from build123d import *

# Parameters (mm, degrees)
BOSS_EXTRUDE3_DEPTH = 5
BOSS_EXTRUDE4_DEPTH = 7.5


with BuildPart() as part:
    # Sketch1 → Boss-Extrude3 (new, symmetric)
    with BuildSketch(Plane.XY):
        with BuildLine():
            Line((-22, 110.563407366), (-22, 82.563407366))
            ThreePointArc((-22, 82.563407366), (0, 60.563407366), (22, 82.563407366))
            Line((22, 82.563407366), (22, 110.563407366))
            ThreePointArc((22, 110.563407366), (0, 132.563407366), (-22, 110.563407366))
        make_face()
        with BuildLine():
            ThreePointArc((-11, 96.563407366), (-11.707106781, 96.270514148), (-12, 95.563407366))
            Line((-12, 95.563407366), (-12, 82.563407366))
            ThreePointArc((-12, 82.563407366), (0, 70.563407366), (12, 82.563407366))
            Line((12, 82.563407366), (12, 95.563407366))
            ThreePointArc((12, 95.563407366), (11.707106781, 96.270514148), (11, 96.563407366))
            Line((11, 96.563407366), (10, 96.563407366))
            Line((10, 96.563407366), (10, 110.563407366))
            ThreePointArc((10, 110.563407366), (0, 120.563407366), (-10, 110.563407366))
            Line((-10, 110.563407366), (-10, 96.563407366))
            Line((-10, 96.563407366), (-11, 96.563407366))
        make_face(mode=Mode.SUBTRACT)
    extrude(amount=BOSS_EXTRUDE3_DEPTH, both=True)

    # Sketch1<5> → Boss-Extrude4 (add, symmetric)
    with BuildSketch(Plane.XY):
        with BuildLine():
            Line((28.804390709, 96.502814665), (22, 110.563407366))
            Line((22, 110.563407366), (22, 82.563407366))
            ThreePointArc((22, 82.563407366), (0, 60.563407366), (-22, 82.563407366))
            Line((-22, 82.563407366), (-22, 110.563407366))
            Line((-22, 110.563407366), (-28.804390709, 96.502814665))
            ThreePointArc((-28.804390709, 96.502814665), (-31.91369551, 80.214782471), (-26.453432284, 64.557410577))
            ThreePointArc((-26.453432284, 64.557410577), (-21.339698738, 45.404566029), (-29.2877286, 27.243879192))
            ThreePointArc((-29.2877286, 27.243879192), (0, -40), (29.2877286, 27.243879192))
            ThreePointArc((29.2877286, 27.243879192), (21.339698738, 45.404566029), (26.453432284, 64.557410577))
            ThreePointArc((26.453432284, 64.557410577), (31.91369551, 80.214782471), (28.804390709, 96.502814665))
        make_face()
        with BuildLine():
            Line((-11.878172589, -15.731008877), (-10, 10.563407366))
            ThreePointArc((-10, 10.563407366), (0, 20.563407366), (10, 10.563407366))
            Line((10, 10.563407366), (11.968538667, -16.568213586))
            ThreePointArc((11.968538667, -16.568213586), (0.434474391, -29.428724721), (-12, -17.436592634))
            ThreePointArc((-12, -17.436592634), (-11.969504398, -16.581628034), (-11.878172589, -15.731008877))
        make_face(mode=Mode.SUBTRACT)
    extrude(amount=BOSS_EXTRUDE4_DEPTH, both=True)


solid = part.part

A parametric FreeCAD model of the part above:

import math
import FreeCAD as App
import Part
import Sketcher
from FreeCAD import Vector
Q = App.Units.Quantity

doc = App.newDocument("Part")
body = doc.addObject("PartDesign::Body", "Body")

# Sketch on XY plane
sketch1 = body.newObject("Sketcher::SketchObject", "Sketch")
sketch1.AttachmentSupport = (doc.getObject("XY_Plane"), [""])
sketch1.MapMode = "FlatFace"
sketch1.addGeometry([
    Part.LineSegment(Vector(-22, 110.563407, 0), Vector(-22, 82.563407, 0)),  # 0
    Part.ArcOfCircle(Part.Circle(Vector(0, 82.563407, 0), Vector(0, 0, 1), 22), math.radians(180), math.radians(360)),  # 1
    Part.LineSegment(Vector(22, 82.563407, 0), Vector(22, 110.563407, 0)),  # 2
    Part.ArcOfCircle(Part.Circle(Vector(0, 110.563407, 0), Vector(0, 0, 1), 22), math.radians(0), math.radians(180)),  # 3
    Part.ArcOfCircle(Part.Circle(Vector(-11, 95.563407, 0), Vector(0, 0, 1), 1), math.radians(90), math.radians(180)),  # 4
    Part.LineSegment(Vector(-11, 96.563407, 0), Vector(-10, 96.563407, 0)),  # 5
    Part.LineSegment(Vector(-10, 96.563407, 0), Vector(-10, 110.563407, 0)),  # 6
    Part.ArcOfCircle(Part.Circle(Vector(0, 110.563407, 0), Vector(0, 0, 1), 10), math.radians(0), math.radians(180)),  # 7
    Part.LineSegment(Vector(10, 110.563407, 0), Vector(10, 96.563407, 0)),  # 8
    Part.LineSegment(Vector(10, 96.563407, 0), Vector(11, 96.563407, 0)),  # 9
    Part.ArcOfCircle(Part.Circle(Vector(11, 95.563407, 0), Vector(0, 0, 1), 1), math.radians(0), math.radians(90)),  # 10
    Part.LineSegment(Vector(12, 95.563407, 0), Vector(12, 82.563407, 0)),  # 11
    Part.ArcOfCircle(Part.Circle(Vector(0, 82.563407, 0), Vector(0, 0, 1), 12), math.radians(180), math.radians(360)),  # 12
    Part.LineSegment(Vector(-12, 82.563407, 0), Vector(-12, 95.563407, 0)),  # 13
], False)
sketch1.addConstraint([
    Sketcher.Constraint("Tangent", 0, 2, 1, 1),
    Sketcher.Constraint("Tangent", 1, 2, 2, 1),
    Sketcher.Constraint("Tangent", 2, 2, 3, 1),
    Sketcher.Constraint("Tangent", 3, 2, 0, 1),
    Sketcher.Constraint("Tangent", 4, 1, 5, 1),
    Sketcher.Constraint("Coincident", 5, 2, 6, 1),
    Sketcher.Constraint("Tangent", 6, 2, 7, 2),
    Sketcher.Constraint("Tangent", 7, 1, 8, 1),
    Sketcher.Constraint("Coincident", 8, 2, 9, 1),
    Sketcher.Constraint("Tangent", 9, 2, 10, 2),
    Sketcher.Constraint("Tangent", 10, 1, 11, 1),
    Sketcher.Constraint("Tangent", 11, 2, 12, 2),
    Sketcher.Constraint("Tangent", 12, 1, 13, 1),
    Sketcher.Constraint("Tangent", 13, 2, 4, 2),
    Sketcher.Constraint("Vertical", 0),
    Sketcher.Constraint("Vertical", 2),
    Sketcher.Constraint("Horizontal", 5),
    Sketcher.Constraint("Vertical", 6),
    Sketcher.Constraint("Vertical", 8),
    Sketcher.Constraint("Horizontal", 9),
    Sketcher.Constraint("Vertical", 11),
    Sketcher.Constraint("Vertical", 13),
    Sketcher.Constraint("Coincident", 7, 3, 3, 3),
    Sketcher.Constraint("Coincident", 12, 3, 1, 3),
    Sketcher.Constraint("Equal", 4, 10),
    Sketcher.Constraint("Symmetric", 4, 3, 10, 3, -2),
    Sketcher.Constraint("Radius", 1, Q("22 mm")),
    Sketcher.Constraint("Radius", 4, Q("1 mm")),
    Sketcher.Constraint("Radius", 7, Q("10 mm")),
    Sketcher.Constraint("Radius", 12, Q("12 mm")),
    Sketcher.Constraint("DistanceY", 0, 2, 0, 1, Q("28 mm")),
    Sketcher.Constraint("DistanceY", 6, 1, 6, 2, Q("14 mm")),
    Sketcher.Constraint("DistanceY", -1, 1, 1, 3, Q("82.563407 mm")),
])
pad1 = body.newObject("PartDesign::Pad", "Pad")
pad1.Profile = sketch1
pad1.Length = 10
pad1.Midplane = True

# Sketch on XY plane
sketch2 = body.newObject("Sketcher::SketchObject", "Sketch001")
sketch2.AttachmentSupport = (doc.getObject("XY_Plane"), [""])
sketch2.MapMode = "FlatFace"
sketch2.addGeometry([
    Part.LineSegment(Vector(28.804391, 96.502815, 0), Vector(22, 110.563407, 0)),  # 0
    Part.LineSegment(Vector(22, 110.563407, 0), Vector(22, 82.563407, 0)),  # 1
    Part.ArcOfCircle(Part.Circle(Vector(0, 82.563407, 0), Vector(0, 0, 1), 22), math.radians(180), math.radians(360)),  # 2
    Part.LineSegment(Vector(-22, 82.563407, 0), Vector(-22, 110.563407, 0)),  # 3
    Part.LineSegment(Vector(-22, 110.563407, 0), Vector(-28.804391, 96.502815, 0)),  # 4
    Part.ArcOfCircle(Part.Circle(Vector(0, 82.563407, 0), Vector(0, 0, 1), 32), math.radians(154.176109), math.radians(214.241854)),  # 5
    Part.ArcOfCircle(Part.Circle(Vector(-51.253525, 47.676789, 0), Vector(0, 0, 1), 30), math.radians(-42.929424), math.radians(34.241854)),  # 6
    Part.ArcOfCircle(Part.Circle(Vector(0, 0, 0), Vector(0, 0, 1), 40), math.radians(137.070576), math.radians(402.929424)),  # 7
    Part.ArcOfCircle(Part.Circle(Vector(51.253525, 47.676789, 0), Vector(0, 0, 1), 30), math.radians(145.758146), math.radians(222.929424)),  # 8
    Part.ArcOfCircle(Part.Circle(Vector(0, 82.563407, 0), Vector(0, 0, 1), 32), math.radians(-34.241854), math.radians(25.823891)),  # 9
    Part.ArcOfCircle(Part.Circle(Vector(0, -17.436593, 0), Vector(0, 0, 1), 12), math.radians(171.828766), math.radians(180)),  # 10
    Part.LineSegment(Vector(-11.878173, -15.731009, 0), Vector(-10, 10.563407, 0)),  # 11
    Part.ArcOfCircle(Part.Circle(Vector(0, 10.563407, 0), Vector(0, 0, 1), 10), math.radians(0), math.radians(180)),  # 12
    Part.LineSegment(Vector(10, 10.563407, 0), Vector(11.968539, -16.568214, 0)),  # 13
    Part.ArcOfCircle(Part.Circle(Vector(0, -17.436593, 0), Vector(0, 0, 1), 12), math.radians(180), math.radians(364.149832)),  # 14
], False)
sketch2.addConstraint([
    Sketcher.Constraint("Coincident", 0, 2, 1, 1),
    Sketcher.Constraint("Tangent", 1, 2, 2, 2),
    Sketcher.Constraint("Tangent", 2, 1, 3, 1),
    Sketcher.Constraint("Coincident", 3, 2, 4, 1),
    Sketcher.Constraint("Tangent", 4, 2, 5, 1),
    Sketcher.Constraint("Tangent", 5, 2, 6, 2),
    Sketcher.Constraint("Tangent", 6, 1, 7, 1),
    Sketcher.Constraint("Tangent", 7, 2, 8, 2),
    Sketcher.Constraint("Tangent", 8, 1, 9, 1),
    Sketcher.Constraint("Tangent", 9, 2, 0, 1),
    Sketcher.Constraint("Coincident", 10, 1, 11, 1),
    Sketcher.Constraint("Coincident", 11, 2, 12, 2),
    Sketcher.Constraint("Coincident", 12, 1, 13, 1),
    Sketcher.Constraint("Tangent", 13, 2, 14, 2),
    Sketcher.Constraint("Tangent", 14, 1, 10, 2),
    Sketcher.Constraint("Vertical", 1),
    Sketcher.Constraint("Vertical", 3),
    Sketcher.Constraint("Coincident", 7, 3, -1, 1),
    Sketcher.Constraint("Coincident", 5, 3, 2, 3),
    Sketcher.Constraint("Coincident", 9, 3, 2, 3),
    Sketcher.Constraint("Equal", 6, 8),
    Sketcher.Constraint("Equal", 5, 9),
    Sketcher.Constraint("Equal", 10, 14),
    Sketcher.Constraint("Symmetric", 0, 2, 3, 2, -2),
    Sketcher.Constraint("Symmetric", 11, 2, 12, 1, -2),
    Sketcher.Constraint("PointOnObject", 10, 3, -2),
    Sketcher.Constraint("Horizontal", 12, 3, 11, 2),
    Sketcher.Constraint("Horizontal", 10, 3, 14, 1),
    Sketcher.Constraint("Radius", 2, Q("22 mm")),
    Sketcher.Constraint("Radius", 5, Q("32 mm")),
    Sketcher.Constraint("Radius", 6, Q("30 mm")),
    Sketcher.Constraint("Radius", 7, Q("40 mm")),
    Sketcher.Constraint("Radius", 10, Q("12 mm")),
    Sketcher.Constraint("Radius", 12, Q("10 mm")),
    Sketcher.Constraint("DistanceY", 1, 2, 1, 1, Q("28 mm")),
    Sketcher.Constraint("DistanceY", 10, 3, 2, 3, Q("100 mm")),
    Sketcher.Constraint("DistanceY", 10, 3, 12, 3, Q("28 mm")),
    Sketcher.Constraint("Distance", 11, Q("26.361408 mm")),
    Sketcher.Constraint("DistanceY", -1, 1, 6, 3, Q("47.676789 mm")),
])
pad2 = body.newObject("PartDesign::Pad", "Pad001")
pad2.Profile = sketch2
pad2.Length = 15
pad2.Midplane = True

doc.recompute()
